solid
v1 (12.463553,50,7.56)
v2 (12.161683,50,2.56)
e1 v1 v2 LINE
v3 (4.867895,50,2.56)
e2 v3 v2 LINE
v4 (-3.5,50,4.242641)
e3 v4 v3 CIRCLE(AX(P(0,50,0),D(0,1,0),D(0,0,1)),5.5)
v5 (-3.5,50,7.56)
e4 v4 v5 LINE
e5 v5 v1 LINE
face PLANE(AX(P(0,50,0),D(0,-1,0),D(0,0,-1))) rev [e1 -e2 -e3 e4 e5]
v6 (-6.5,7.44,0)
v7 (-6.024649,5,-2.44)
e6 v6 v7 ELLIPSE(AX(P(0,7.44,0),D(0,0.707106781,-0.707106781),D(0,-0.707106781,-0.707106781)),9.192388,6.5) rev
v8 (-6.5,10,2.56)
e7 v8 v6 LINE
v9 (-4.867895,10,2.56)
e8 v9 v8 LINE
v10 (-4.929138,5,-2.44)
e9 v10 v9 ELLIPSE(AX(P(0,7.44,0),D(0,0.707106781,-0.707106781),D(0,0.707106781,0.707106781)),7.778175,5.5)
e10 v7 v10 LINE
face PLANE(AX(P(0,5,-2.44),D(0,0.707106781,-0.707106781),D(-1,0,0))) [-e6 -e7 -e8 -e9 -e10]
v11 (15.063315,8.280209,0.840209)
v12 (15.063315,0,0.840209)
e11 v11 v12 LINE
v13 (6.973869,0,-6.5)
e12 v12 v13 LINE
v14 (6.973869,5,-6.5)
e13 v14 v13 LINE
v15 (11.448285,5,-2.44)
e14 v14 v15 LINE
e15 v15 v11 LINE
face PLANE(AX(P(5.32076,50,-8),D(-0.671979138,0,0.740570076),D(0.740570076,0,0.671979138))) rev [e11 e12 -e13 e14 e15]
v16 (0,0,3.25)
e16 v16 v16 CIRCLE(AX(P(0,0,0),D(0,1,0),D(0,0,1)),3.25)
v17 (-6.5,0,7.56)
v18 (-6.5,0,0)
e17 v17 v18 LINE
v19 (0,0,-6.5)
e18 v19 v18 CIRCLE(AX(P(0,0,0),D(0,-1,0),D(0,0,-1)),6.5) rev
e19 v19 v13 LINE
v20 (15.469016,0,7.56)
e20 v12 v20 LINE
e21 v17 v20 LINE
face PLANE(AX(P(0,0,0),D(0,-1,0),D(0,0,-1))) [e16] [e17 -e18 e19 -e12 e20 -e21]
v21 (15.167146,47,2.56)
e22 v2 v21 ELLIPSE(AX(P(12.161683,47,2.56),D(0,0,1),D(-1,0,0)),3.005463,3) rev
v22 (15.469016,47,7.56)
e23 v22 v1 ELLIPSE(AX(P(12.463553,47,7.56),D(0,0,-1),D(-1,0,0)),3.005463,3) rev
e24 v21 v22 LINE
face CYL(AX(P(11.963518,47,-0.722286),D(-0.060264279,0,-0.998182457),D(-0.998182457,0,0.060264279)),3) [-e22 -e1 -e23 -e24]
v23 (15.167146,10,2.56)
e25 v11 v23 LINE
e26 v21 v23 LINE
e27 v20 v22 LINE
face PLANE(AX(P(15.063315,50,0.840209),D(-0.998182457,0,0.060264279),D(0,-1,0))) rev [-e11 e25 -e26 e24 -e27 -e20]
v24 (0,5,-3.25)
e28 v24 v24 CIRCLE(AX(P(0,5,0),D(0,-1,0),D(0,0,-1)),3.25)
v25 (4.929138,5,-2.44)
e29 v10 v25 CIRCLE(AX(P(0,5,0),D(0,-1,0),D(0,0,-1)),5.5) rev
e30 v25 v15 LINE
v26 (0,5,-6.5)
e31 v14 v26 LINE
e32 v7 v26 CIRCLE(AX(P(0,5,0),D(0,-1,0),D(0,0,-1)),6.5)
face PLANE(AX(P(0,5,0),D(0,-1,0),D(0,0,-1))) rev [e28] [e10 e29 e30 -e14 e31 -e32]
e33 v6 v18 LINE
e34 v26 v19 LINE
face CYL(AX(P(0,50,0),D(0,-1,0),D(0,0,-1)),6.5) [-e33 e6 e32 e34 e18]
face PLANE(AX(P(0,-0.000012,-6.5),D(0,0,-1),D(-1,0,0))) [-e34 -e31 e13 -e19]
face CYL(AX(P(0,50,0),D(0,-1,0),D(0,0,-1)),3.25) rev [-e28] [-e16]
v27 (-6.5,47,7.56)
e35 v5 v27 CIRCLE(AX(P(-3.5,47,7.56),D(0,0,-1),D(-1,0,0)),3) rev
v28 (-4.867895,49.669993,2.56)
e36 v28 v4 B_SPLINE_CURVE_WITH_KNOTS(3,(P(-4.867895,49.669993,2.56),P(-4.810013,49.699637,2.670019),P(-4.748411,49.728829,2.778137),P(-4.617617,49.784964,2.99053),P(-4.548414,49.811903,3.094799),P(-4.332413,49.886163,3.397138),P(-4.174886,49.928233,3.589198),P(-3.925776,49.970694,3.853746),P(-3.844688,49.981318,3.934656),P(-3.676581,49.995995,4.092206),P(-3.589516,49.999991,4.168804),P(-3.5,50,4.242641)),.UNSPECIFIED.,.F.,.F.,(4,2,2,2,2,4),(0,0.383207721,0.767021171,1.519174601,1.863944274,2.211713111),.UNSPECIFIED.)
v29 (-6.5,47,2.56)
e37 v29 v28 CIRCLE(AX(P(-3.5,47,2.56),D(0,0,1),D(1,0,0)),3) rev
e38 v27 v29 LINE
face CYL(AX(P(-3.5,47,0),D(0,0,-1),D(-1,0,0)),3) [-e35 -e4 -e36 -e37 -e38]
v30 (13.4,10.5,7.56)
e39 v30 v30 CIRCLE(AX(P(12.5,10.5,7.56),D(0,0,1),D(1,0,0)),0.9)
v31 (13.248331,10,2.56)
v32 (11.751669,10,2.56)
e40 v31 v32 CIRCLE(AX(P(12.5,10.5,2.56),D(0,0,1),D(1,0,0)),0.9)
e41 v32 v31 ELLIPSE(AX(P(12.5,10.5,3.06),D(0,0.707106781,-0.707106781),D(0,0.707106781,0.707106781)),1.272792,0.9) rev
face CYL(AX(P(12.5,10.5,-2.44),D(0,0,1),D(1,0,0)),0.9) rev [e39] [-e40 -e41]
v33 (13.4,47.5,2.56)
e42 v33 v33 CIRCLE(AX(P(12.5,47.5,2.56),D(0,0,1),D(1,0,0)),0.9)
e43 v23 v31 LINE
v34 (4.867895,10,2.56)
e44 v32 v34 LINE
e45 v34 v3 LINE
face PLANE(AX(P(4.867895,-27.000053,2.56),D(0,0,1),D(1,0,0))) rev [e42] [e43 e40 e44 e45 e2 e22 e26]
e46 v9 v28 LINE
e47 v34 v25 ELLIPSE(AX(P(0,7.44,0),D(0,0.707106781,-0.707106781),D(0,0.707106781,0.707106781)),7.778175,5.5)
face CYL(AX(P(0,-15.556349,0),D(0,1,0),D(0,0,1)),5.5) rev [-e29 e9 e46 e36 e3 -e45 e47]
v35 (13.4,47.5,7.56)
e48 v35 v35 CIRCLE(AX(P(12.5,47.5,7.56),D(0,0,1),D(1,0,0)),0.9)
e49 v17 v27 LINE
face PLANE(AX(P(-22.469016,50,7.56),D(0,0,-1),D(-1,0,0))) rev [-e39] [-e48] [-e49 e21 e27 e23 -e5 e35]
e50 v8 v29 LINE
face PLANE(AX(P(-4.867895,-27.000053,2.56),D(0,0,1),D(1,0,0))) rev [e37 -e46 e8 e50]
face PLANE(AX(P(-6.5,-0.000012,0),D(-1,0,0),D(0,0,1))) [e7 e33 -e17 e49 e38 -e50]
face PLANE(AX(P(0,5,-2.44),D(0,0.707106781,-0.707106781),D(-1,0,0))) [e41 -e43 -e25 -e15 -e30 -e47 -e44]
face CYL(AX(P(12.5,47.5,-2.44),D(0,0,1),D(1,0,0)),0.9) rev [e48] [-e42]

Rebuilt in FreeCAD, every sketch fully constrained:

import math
import FreeCAD as App
import Part
import Sketcher
Q = App.Units.Quantity


def edges_at(feature, points):
    """Names of the edges that pass closest to the given points."""
    edges = feature.Shape.Edges
    near = lambda p: min(range(len(edges)), key=lambda i: edges[i].distToShape(Part.Vertex(*p))[0])
    return sorted({f"Edge{near(p) + 1}" for p in points})

doc = App.newDocument("Part")
body = doc.addObject("PartDesign::Body", "Body")

sketch1 = body.newObject("Sketcher::SketchObject", "Sketch")
sketch1.AttachmentSupport = (doc.getObject("XZ_Plane"), [""])
sketch1.MapMode = "FlatFace"
sketch1.addGeometry([
    Part.LineSegment(App.Vector(-5.32076, -8, 0), App.Vector(-22.469016, 7.56, 0)),
    Part.LineSegment(App.Vector(-22.469016, 7.56, 0), App.Vector(22.469016, 7.56, 0)),
    Part.LineSegment(App.Vector(22.469016, 7.56, 0), App.Vector(5.32076, -8, 0)),
    Part.LineSegment(App.Vector(5.32076, -8, 0), App.Vector(-5.32076, -8, 0)),
    Part.Circle(App.Vector(0, 0, 0), App.Vector(0, 0, 1), 3.25),
], False)
sketch1.addConstraint([
    Sketcher.Constraint("Coincident", 0, 2, 1, 1),
    Sketcher.Constraint("Coincident", 1, 2, 2, 1),
    Sketcher.Constraint("Coincident", 2, 2, 3, 1),
    Sketcher.Constraint("Coincident", 3, 2, 0, 1),
    Sketcher.Constraint("Horizontal", 1),
    Sketcher.Constraint("Horizontal", 3),
    Sketcher.Constraint("Coincident", 4, 3, -1, 1),
    Sketcher.Constraint("Equal", 0, 2),
    Sketcher.Constraint("Diameter", 4, Q("6.5 mm")),
    Sketcher.Constraint("DistanceY", 2, 2, -1, 1, Q("8 mm")),
    Sketcher.Constraint("Angle", 0, Q("137.78 deg")),
    Sketcher.Constraint("DistanceY", -1, 1, 0, 2, Q("7.56 mm")),
    Sketcher.Constraint("DistanceX", 1, 1, 1, 2, Q("44.938031 mm")),
    Sketcher.Constraint("DistanceX", -1, 1, 2, 2, Q("5.32076 mm")),
])
pad1 = body.newObject("PartDesign::Pad", "Pad")
pad1.Profile = sketch1
pad1.Length = 50
pad1.Reversed = True
doc.recompute()

chamfer = body.newObject("PartDesign::Chamfer", "Chamfer")
chamfer.Base = (pad1, edges_at(pad1, [(22.469, 25, 7.56)]))
chamfer.ChamferType = "Two distances"
chamfer.Size = 7
chamfer.Size2 = 10

sketch2 = body.newObject("Sketcher::SketchObject", "Sketch001")
sketch2.AttachmentSupport = (doc.getObject("XZ_Plane"), [""])
sketch2.MapMode = "FlatFace"
sketch2.AttachmentOffset = App.Placement(App.Vector(0, 0, -50), App.Rotation())
sketch2.addGeometry(Part.Circle(App.Vector(0, 0, 0), App.Vector(0, 0, 1), 5.5), False)
sketch2.addConstraint([
    Sketcher.Constraint("Coincident", 0, 3, -1, 1),
    Sketcher.Constraint("Diameter", 0, Q("11 mm")),
])
pocket1 = body.newObject("PartDesign::Pocket", "Pocket")
pocket1.Profile = sketch2
pocket1.Length = 45
pocket1.Reversed = True

sketch3 = body.newObject("Sketcher::SketchObject", "Sketch002")
sketch3.AttachmentSupport = (doc.getObject("XZ_Plane"), [""])
sketch3.MapMode = "FlatFace"
sketch3.addGeometry([
    Part.LineSegment(App.Vector(-6.5, 0, 0), App.Vector(-6.5, 8.455296, 0)),
    Part.LineSegment(App.Vector(-6.5, 8.455296, 0), App.Vector(-18.092935, 18.50953, 0)),
    Part.LineSegment(App.Vector(-18.092935, 18.50953, 0), App.Vector(-27.843988, 13.266508, 0)),
    Part.LineSegment(App.Vector(-27.843988, 13.266508, 0), App.Vector(-26.239797, -3.957148, 0)),
    Part.LineSegment(App.Vector(-26.239797, -3.957148, 0), App.Vector(-22.051552, -11.746512, 0)),
    Part.LineSegment(App.Vector(-22.051552, -11.746512, 0), App.Vector(6.445296, -11.904203, 0)),
    Part.LineSegment(App.Vector(6.445296, -11.904203, 0), App.Vector(12.131507, -6.5, 0)),
    Part.LineSegment(App.Vector(12.131507, -6.5, 0), App.Vector(0, -6.5, 0)),
    Part.ArcOfCircle(Part.Circle(App.Vector(0, 0, 0), App.Vector(0, 0, 1), 6.5), math.radians(180), math.radians(270)),
], False)
sketch3.addConstraint([
    Sketcher.Constraint("Coincident", 0, 2, 1, 1),
    Sketcher.Constraint("Coincident", 1, 2, 2, 1),
    Sketcher.Constraint("Coincident", 2, 2, 3, 1),
    Sketcher.Constraint("Coincident", 3, 2, 4, 1),
    Sketcher.Constraint("Coincident", 4, 2, 5, 1),
    Sketcher.Constraint("Coincident", 5, 2, 6, 1),
    Sketcher.Constraint("Coincident", 6, 2, 7, 1),
    Sketcher.Constraint("Tangent", 7, 2, 8, 2),
    Sketcher.Constraint("Tangent", 8, 1, 0, 1),
    Sketcher.Constraint("Vertical", 0),
    Sketcher.Constraint("Horizontal", 7),
    Sketcher.Constraint("Coincident", 8, 3, -1, 1),
    Sketcher.Constraint("Perpendicular", 2, 4),
    Sketcher.Constraint("Radius", 8, Q("6.5 mm")),
    Sketcher.Constraint("Distance", 3, Q("17.298202 mm")),
    Sketcher.Constraint("DistanceY", 5, 2, 0, 2, Q("20.359499 mm")),
    Sketcher.Constraint("Distance", 1, Q("15.34548 mm")),
    Sketcher.Constraint("Distance", 2, Q("11.071238 mm")),
    Sketcher.Constraint("Distance", 6, Q("7.844642 mm")),
    Sketcher.Constraint("DistanceX", 7, 2, 7, 1, Q("12.131507 mm")),
    Sketcher.Constraint("DistanceY", 0, 1, 0, 2, Q("8.455296 mm")),
    Sketcher.Constraint("DistanceY", -1, 1, 1, 2, Q("18.50953 mm")),
    Sketcher.Constraint("DistanceX", 2, 2, -1, 1, Q("27.843988 mm")),
    Sketcher.Constraint("DistanceY", 3, 2, -1, 1, Q("3.957148 mm")),
    Sketcher.Constraint("DistanceX", 4, 2, -1, 1, Q("22.051552 mm")),
])
pocket2 = body.newObject("PartDesign::Pocket", "Pocket001")
pocket2.Profile = sketch3
pocket2.Type = "ThroughAll"
pocket2.Midplane = True

sketch4 = body.newObject("Sketcher::SketchObject", "Sketch003")
sketch4.AttachmentSupport = (doc.getObject("XZ_Plane"), [""])
sketch4.MapMode = "FlatFace"
sketch4.AttachmentOffset = App.Placement(App.Vector(0, 0, -50), App.Rotation())
sketch4.addGeometry([
    Part.LineSegment(App.Vector(0, 0, 0), App.Vector(4.867895, 2.56, 0)),
    Part.LineSegment(App.Vector(4.867895, 2.56, 0), App.Vector(20.482846, 2.56, 0)),
    Part.LineSegment(App.Vector(20.482846, 2.56, 0), App.Vector(8.256918, -8.380042, 0)),
    Part.LineSegment(App.Vector(8.256918, -8.380042, 0), App.Vector(-9.589049, -8.380042, 0)),
    Part.LineSegment(App.Vector(-9.589049, -8.380042, 0), App.Vector(-9.589049, 2.56, 0)),
    Part.LineSegment(App.Vector(-9.589049, 2.56, 0), App.Vector(-4.867895, 2.56, 0)),
    Part.LineSegment(App.Vector(-4.867895, 2.56, 0), App.Vector(0, 0, 0)),
], False)
sketch4.addConstraint([
    Sketcher.Constraint("Coincident", 0, 2, 1, 1),
    Sketcher.Constraint("Coincident", 1, 2, 2, 1),
    Sketcher.Constraint("Coincident", 2, 2, 3, 1),
    Sketcher.Constraint("Coincident", 3, 2, 4, 1),
    Sketcher.Constraint("Coincident", 4, 2, 5, 1),
    Sketcher.Constraint("Coincident", 5, 2, 6, 1),
    Sketcher.Constraint("Coincident", 6, 2, 0, 1),
    Sketcher.Constraint("Horizontal", 1),
    Sketcher.Constraint("Horizontal", 3),
    Sketcher.Constraint("Vertical", 4),
    Sketcher.Constraint("Horizontal", 5),
    Sketcher.Constraint("Coincident", 6, 2, -1, 1),
    Sketcher.Constraint("Symmetric", 0, 2, 5, 2, -2),
    Sketcher.Constraint("Distance", 0, Q("5.5 mm")),
    Sketcher.Constraint("DistanceY", -1, 1, 0, 2, Q("2.56 mm")),
    Sketcher.Constraint("DistanceX", 1, 1, 1, 2, Q("15.614951 mm")),
    Sketcher.Constraint("Distance", 2, Q("16.406031 mm")),
    Sketcher.Constraint("DistanceX", 3, 2, 3, 1, Q("17.845966 mm")),
    Sketcher.Constraint("DistanceX", 5, 1, 5, 2, Q("4.721154 mm")),
])
pocket3 = body.newObject("PartDesign::Pocket", "Pocket002")
pocket3.Profile = sketch4
pocket3.Length = 45
pocket3.Reversed = True
doc.recompute()

chamfer2 = body.newObject("PartDesign::Chamfer", "Chamfer001")
chamfer2.Base = (pocket3, edges_at(pocket3, [(10.018, 5, 2.56), (-5.684, 5, 2.56)]))
chamfer2.Size = 5

sketch5 = body.newObject("Sketcher::SketchObject", "Sketch004")
sketch5.AttachmentSupport = (doc.getObject("XY_Plane"), [""])
sketch5.MapMode = "FlatFace"
sketch5.AttachmentOffset = App.Placement(App.Vector(0, 0, 7.56), App.Rotation())
sketch5.addGeometry([
    Part.Circle(App.Vector(12.5, 47.5, 0), App.Vector(0, 0, 1), 0.9),
    Part.Circle(App.Vector(12.5, 10.5, 0), App.Vector(0, 0, 1), 0.9),
], False)
sketch5.addConstraint([
    Sketcher.Constraint("Equal", 0, 1),
    Sketcher.Constraint("Vertical", 0, 3, 1, 3),
    Sketcher.Constraint("Diameter", 0, Q("1.8 mm")),
    Sketcher.Constraint("DistanceY", 1, 3, 0, 3, Q("37 mm")),
    Sketcher.Constraint("DistanceX", -1, 1, 0, 3, Q("12.5 mm")),
    Sketcher.Constraint("DistanceY", -1, 1, 0, 3, Q("47.5 mm")),
])
pocket4 = body.newObject("PartDesign::Pocket", "Pocket003")
pocket4.Profile = sketch5
pocket4.Length = 10
doc.recompute()

fillet = body.newObject("PartDesign::Fillet", "Fillet")
fillet.Base = (pocket4, edges_at(pocket4, [(15.318, 50, 5.06), (-6.5, 50, 5.06)]))
fillet.Radius = 3

doc.recompute()
